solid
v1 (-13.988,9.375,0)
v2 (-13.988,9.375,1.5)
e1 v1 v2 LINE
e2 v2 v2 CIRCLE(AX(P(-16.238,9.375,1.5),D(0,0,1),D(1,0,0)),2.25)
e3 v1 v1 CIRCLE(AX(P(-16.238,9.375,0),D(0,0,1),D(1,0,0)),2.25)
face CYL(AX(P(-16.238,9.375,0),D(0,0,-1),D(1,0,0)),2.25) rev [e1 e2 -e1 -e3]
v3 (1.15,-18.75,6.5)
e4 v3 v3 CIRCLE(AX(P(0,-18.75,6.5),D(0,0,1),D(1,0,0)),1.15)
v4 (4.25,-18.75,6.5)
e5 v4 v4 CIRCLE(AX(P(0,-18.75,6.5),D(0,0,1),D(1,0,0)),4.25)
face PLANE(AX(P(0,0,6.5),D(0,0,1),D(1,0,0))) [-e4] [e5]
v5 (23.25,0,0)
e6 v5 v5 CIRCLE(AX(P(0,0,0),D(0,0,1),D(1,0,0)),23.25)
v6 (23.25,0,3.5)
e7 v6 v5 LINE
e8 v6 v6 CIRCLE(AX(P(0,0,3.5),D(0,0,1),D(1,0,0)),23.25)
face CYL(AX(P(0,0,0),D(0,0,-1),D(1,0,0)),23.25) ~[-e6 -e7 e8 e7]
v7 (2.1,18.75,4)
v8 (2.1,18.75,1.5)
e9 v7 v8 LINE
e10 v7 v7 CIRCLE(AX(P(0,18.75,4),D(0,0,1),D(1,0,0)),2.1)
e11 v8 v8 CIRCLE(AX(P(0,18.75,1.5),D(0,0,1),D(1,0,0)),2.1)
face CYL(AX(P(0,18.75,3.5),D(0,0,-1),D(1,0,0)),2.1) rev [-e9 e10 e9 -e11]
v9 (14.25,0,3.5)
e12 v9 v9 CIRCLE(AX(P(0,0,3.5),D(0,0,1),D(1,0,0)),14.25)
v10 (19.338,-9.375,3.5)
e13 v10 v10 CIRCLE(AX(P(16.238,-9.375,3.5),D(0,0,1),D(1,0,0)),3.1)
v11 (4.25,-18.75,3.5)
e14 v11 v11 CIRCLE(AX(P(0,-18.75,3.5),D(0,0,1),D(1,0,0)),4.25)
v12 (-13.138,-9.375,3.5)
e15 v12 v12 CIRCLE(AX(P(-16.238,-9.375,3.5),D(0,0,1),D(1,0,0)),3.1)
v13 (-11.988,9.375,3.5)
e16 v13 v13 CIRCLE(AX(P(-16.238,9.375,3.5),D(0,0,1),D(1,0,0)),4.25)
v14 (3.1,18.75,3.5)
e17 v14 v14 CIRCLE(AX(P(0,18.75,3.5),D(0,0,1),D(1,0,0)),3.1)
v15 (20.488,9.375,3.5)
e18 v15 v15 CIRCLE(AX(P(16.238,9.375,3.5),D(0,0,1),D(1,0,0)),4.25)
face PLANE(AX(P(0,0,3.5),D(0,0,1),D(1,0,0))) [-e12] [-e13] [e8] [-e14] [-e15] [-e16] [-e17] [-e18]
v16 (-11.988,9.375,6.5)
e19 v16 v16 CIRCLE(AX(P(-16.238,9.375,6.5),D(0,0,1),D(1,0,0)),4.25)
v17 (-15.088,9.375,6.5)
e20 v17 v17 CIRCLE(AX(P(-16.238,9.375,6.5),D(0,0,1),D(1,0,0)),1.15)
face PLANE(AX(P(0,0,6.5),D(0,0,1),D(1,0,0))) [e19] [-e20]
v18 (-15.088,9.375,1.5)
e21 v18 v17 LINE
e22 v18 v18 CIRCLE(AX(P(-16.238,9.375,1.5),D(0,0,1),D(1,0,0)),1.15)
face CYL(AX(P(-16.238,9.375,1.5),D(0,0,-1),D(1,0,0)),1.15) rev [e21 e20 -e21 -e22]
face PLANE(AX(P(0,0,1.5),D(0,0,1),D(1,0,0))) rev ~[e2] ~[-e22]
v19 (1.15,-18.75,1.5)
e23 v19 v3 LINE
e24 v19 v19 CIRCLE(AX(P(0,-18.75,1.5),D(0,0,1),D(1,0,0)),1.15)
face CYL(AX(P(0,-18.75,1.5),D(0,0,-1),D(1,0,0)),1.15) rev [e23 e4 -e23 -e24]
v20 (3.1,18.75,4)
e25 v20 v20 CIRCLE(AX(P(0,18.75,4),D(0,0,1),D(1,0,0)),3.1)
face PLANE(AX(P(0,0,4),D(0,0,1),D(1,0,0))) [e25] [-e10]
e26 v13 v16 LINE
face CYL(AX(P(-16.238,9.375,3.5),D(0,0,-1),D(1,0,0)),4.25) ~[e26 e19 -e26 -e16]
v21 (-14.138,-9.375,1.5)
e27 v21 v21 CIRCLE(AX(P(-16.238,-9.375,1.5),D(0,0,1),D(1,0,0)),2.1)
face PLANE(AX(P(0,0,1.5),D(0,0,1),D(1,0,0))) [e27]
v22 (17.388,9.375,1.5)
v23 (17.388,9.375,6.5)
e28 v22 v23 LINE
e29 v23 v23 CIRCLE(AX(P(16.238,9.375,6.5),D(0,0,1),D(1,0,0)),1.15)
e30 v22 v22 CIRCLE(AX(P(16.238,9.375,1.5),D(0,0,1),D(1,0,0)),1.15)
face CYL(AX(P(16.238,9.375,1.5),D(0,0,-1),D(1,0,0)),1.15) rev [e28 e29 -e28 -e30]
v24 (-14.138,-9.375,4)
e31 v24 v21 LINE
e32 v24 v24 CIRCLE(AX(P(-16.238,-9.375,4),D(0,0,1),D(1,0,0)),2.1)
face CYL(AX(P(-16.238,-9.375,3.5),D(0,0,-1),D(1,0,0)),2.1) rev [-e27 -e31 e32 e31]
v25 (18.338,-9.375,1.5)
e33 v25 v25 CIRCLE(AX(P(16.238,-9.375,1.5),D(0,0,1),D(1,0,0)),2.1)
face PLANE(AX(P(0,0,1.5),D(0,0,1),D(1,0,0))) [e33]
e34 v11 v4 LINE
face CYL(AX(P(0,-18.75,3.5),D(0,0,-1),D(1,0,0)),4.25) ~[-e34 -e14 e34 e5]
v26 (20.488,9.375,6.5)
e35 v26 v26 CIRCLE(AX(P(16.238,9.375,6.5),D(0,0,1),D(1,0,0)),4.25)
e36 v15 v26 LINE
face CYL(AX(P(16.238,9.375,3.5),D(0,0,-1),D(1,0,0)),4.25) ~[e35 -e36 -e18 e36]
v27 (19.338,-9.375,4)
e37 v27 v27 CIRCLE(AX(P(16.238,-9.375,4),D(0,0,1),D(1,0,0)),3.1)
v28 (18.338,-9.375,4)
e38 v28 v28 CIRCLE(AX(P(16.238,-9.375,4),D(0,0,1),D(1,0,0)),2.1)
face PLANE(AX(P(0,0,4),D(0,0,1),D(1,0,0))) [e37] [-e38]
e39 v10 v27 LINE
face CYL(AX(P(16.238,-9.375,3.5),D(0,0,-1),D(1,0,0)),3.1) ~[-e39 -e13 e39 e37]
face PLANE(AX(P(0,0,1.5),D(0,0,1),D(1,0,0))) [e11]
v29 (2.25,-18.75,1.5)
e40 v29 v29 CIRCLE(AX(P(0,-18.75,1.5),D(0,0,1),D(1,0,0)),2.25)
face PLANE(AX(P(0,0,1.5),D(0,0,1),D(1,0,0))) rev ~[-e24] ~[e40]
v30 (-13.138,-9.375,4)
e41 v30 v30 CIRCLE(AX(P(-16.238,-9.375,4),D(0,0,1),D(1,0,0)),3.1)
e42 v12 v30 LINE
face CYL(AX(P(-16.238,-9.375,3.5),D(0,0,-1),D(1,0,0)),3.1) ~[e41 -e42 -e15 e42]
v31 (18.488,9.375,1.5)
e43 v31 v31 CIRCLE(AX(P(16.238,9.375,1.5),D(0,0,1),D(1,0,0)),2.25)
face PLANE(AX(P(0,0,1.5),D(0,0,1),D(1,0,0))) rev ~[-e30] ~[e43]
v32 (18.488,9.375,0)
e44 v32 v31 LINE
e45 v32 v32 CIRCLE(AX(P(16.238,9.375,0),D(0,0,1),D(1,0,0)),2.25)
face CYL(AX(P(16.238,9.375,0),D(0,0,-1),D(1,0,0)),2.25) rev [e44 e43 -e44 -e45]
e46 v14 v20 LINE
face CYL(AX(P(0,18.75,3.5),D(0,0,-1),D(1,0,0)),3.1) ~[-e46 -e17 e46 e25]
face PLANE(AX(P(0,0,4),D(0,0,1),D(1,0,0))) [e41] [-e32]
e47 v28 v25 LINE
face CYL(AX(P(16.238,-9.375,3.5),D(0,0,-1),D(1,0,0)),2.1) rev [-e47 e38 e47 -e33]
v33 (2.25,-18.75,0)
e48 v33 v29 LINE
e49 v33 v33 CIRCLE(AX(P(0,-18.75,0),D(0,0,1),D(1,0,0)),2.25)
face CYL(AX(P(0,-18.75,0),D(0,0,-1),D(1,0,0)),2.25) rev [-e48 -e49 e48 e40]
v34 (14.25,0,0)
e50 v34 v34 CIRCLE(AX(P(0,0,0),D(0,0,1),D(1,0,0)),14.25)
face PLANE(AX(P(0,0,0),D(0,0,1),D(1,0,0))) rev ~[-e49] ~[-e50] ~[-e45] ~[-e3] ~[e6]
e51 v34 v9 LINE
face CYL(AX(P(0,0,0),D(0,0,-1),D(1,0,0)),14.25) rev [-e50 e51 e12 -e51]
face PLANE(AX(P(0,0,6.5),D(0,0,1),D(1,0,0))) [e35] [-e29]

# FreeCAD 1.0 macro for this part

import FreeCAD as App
import Part
import Sketcher

doc = App.newDocument("Part")
params = doc.addObject("Spreadsheet::Sheet", "Params")
for row, (alias, value) in enumerate([
    ("sketch1_diameter", "4.5 mm"),
    ("sketch1_diameter2", "46.5 mm"),
    ("sketch1_diameter3", "28.5 mm"),
    ("pad1_length", "1.5 mm"),
    ("sketch2_diameter", "4.2 mm"),
    ("sketch2_diameter2", "2.3 mm"),
    ("sketch2_diameter3", "46.5 mm"),
    ("sketch2_diameter4", "28.5 mm"),
    ("pad2_length", "2 mm"),
    ("sketch3_diameter", "2.3 mm"),
    ("sketch3_diameter2", "8.5 mm"),
    ("pad3_length", "3 mm"),
    ("sketch4_diameter", "4.2 mm"),
    ("sketch4_diameter2", "6.2 mm"),
    ("pad4_length", "0.5 mm"),
], start=1):
    params.set(f"A{row}", alias)
    params.set(f"B{row}", "=" + value)
    params.setAlias(f"B{row}", alias)

body = doc.addObject("PartDesign::Body", "Body")

sketch1 = body.newObject("Sketcher::SketchObject", "Sketch")
sketch1.AttachmentSupport = (doc.getObject("XY_Plane"), [""])
sketch1.MapMode = "FlatFace"
sketch1.addGeometry(Part.Circle(App.Vector(0, 0, 0), App.Vector(0, 0, 1), 23.2), False)
sketch1.addGeometry(Part.Circle(App.Vector(0, 0, 0), App.Vector(0, 0, 1), 14.2), False)
sketch1.addGeometry(Part.Circle(App.Vector(0, -18.8, 0), App.Vector(0, 0, 1), 2.2), False)
sketch1.addGeometry(Part.Circle(App.Vector(-16.2, 9.4, 0), App.Vector(0, 0, 1), 2.2), False)
sketch1.addGeometry(Part.Circle(App.Vector(16.2, 9.4, 0), App.Vector(0, 0, 1), 2.2), False)
sketch1.addConstraint(Sketcher.Constraint("Coincident", 0, 3, -1, 1))
sketch1.addConstraint(Sketcher.Constraint("Coincident", 1, 3, -1, 1))
sketch1.addConstraint(Sketcher.Constraint("Equal", 2, 3))
sketch1.addConstraint(Sketcher.Constraint("Equal", 3, 4))
sketch1.addConstraint(Sketcher.Constraint("Symmetric", 3, 3, 4, 3, -2))
sketch1.addConstraint(Sketcher.Constraint("PointOnObject", 2, 3, -2))
sketch1.addConstraint(Sketcher.Constraint("Diameter", 2, 4.5))
sketch1.addConstraint(Sketcher.Constraint("Diameter", 0, 46.5))
sketch1.addConstraint(Sketcher.Constraint("Diameter", 1, 28.5))
sketch1.addConstraint(Sketcher.Constraint("DistanceY", 2, 3, -1, 1, 18.75))
sketch1.addConstraint(Sketcher.Constraint("DistanceX", 3, 3, -1, 1, 16.238))
sketch1.addConstraint(Sketcher.Constraint("DistanceY", -1, 1, 3, 3, 9.375))
sketch1.setExpression("Constraints[6]", "Params.sketch1_diameter")
sketch1.setExpression("Constraints[7]", "Params.sketch1_diameter2")
sketch1.setExpression("Constraints[8]", "Params.sketch1_diameter3")
pad1 = body.newObject("PartDesign::Pad", "Pad")
pad1.Profile = sketch1
pad1.setExpression("Length", "Params.pad1_length")

sketch2 = body.newObject("Sketcher::SketchObject", "Sketch001")
sketch2.AttachmentSupport = (doc.getObject("XY_Plane"), [""])
sketch2.MapMode = "FlatFace"
sketch2.AttachmentOffset = App.Placement(App.Vector(0, 0, 1.5), App.Rotation())
sketch2.addGeometry(Part.Circle(App.Vector(0, 0, 0), App.Vector(0, 0, 1), 23.2), False)
sketch2.addGeometry(Part.Circle(App.Vector(0, 0, 0), App.Vector(0, 0, 1), 14.2), False)
sketch2.addGeometry(Part.Circle(App.Vector(-16.2, -9.4, 0), App.Vector(0, 0, 1), 2.1), False)
sketch2.addGeometry(Part.Circle(App.Vector(16.2, -9.4, 0), App.Vector(0, 0, 1), 2.1), False)
sketch2.addGeometry(Part.Circle(App.Vector(0, 18.8, 0), App.Vector(0, 0, 1), 2.1), False)
sketch2.addGeometry(Part.Circle(App.Vector(0, -18.8, 0), App.Vector(0, 0, 1), 1.1), False)
sketch2.addGeometry(Part.Circle(App.Vector(-16.2, 9.4, 0), App.Vector(0, 0, 1), 1.1), False)
sketch2.addGeometry(Part.Circle(App.Vector(16.2, 9.4, 0), App.Vector(0, 0, 1), 1.1), False)
sketch2.addConstraint(Sketcher.Constraint("Coincident", 0, 3, -1, 1))
sketch2.addConstraint(Sketcher.Constraint("Coincident", 1, 3, -1, 1))
sketch2.addConstraint(Sketcher.Constraint("Equal", 2, 3))
sketch2.addConstraint(Sketcher.Constraint("Equal", 3, 4))
sketch2.addConstraint(Sketcher.Constraint("Equal", 5, 6))
sketch2.addConstraint(Sketcher.Constraint("Equal", 6, 7))
sketch2.addConstraint(Sketcher.Constraint("Symmetric", 4, 3, 5, 3, -1, 1))
sketch2.addConstraint(Sketcher.Constraint("Symmetric", 3, 3, 6, 3, -1, 1))
sketch2.addConstraint(Sketcher.Constraint("Symmetric", 2, 3, 7, 3, -1, 1))
sketch2.addConstraint(Sketcher.Constraint("Symmetric", 2, 3, 3, 3, -2))
sketch2.addConstraint(Sketcher.Constraint("PointOnObject", 4, 3, -2))
sketch2.addConstraint(Sketcher.Constraint("Diameter", 2, 4.2))
sketch2.addConstraint(Sketcher.Constraint("Diameter", 5, 2.3))
sketch2.addConstraint(Sketcher.Constraint("Diameter", 0, 46.5))
sketch2.addConstraint(Sketcher.Constraint("Diameter", 1, 28.5))
sketch2.addConstraint(Sketcher.Constraint("DistanceY", 5, 3, 4, 3, 37.5))
sketch2.addConstraint(Sketcher.Constraint("DistanceY", 2, 3, 6, 3, 18.75))
sketch2.addConstraint(Sketcher.Constraint("DistanceX", 2, 3, -1, 1, 16.238))
sketch2.setExpression("Constraints[11]", "Params.sketch2_diameter")
sketch2.setExpression("Constraints[12]", "Params.sketch2_diameter2")
sketch2.setExpression("Constraints[13]", "Params.sketch2_diameter3")
sketch2.setExpression("Constraints[14]", "Params.sketch2_diameter4")
pad2 = body.newObject("PartDesign::Pad", "Pad001")
pad2.Profile = sketch2
pad2.setExpression("Length", "Params.pad2_length")

sketch3 = body.newObject("Sketcher::SketchObject", "Sketch002")
sketch3.AttachmentSupport = (doc.getObject("XY_Plane"), [""])
sketch3.MapMode = "FlatFace"
sketch3.AttachmentOffset = App.Placement(App.Vector(0, 0, 3.5), App.Rotation())
sketch3.addGeometry(Part.Circle(App.Vector(0, -18.8, 0), App.Vector(0, 0, 1), 4.2), False)
sketch3.addGeometry(Part.Circle(App.Vector(0, -18.8, 0), App.Vector(0, 0, 1), 1.1), False)
sketch3.addGeometry(Part.Circle(App.Vector(-16.2, 9.4, 0), App.Vector(0, 0, 1), 4.2), False)
sketch3.addGeometry(Part.Circle(App.Vector(-16.2, 9.4, 0), App.Vector(0, 0, 1), 1.1), False)
sketch3.addGeometry(Part.Circle(App.Vector(16.2, 9.4, 0), App.Vector(0, 0, 1), 4.2), False)
sketch3.addGeometry(Part.Circle(App.Vector(16.2, 9.4, 0), App.Vector(0, 0, 1), 1.1), False)
sketch3.addConstraint(Sketcher.Constraint("Coincident", 1, 3, 0, 3))
sketch3.addConstraint(Sketcher.Constraint("Coincident", 3, 3, 2, 3))
sketch3.addConstraint(Sketcher.Constraint("Coincident", 5, 3, 4, 3))
sketch3.addConstraint(Sketcher.Constraint("Equal", 0, 2))
sketch3.addConstraint(Sketcher.Constraint("Equal", 1, 3))
sketch3.addConstraint(Sketcher.Constraint("Equal", 2, 4))
sketch3.addConstraint(Sketcher.Constraint("Equal", 3, 5))
sketch3.addConstraint(Sketcher.Constraint("Symmetric", 2, 3, 4, 3, -2))
sketch3.addConstraint(Sketcher.Constraint("PointOnObject", 0, 3, -2))
sketch3.addConstraint(Sketcher.Constraint("Diameter", 1, 2.3))
sketch3.addConstraint(Sketcher.Constraint("Diameter", 0, 8.5))
sketch3.addConstraint(Sketcher.Constraint("DistanceY", 0, 3, -1, 1, 18.75))
sketch3.addConstraint(Sketcher.Constraint("DistanceX", 2, 3, -1, 1, 16.238))
sketch3.addConstraint(Sketcher.Constraint("DistanceY", -1, 1, 2, 3, 9.375))
sketch3.setExpression("Constraints[9]", "Params.sketch3_diameter")
sketch3.setExpression("Constraints[10]", "Params.sketch3_diameter2")
pad3 = body.newObject("PartDesign::Pad", "Pad002")
pad3.Profile = sketch3
pad3.setExpression("Length", "Params.pad3_length")

sketch4 = body.newObject("Sketcher::SketchObject", "Sketch003")
sketch4.AttachmentSupport = (doc.getObject("XY_Plane"), [""])
sketch4.MapMode = "FlatFace"
sketch4.AttachmentOffset = App.Placement(App.Vector(0, 0, 3.5), App.Rotation())
sketch4.addGeometry(Part.Circle(App.Vector(16.2, -9.4, 0), App.Vector(0, 0, 1), 3.1), False)
sketch4.addGeometry(Part.Circle(App.Vector(16.2, -9.4, 0), App.Vector(0, 0, 1), 2.1), False)
sketch4.addGeometry(Part.Circle(App.Vector(0, 18.8, 0), App.Vector(0, 0, 1), 3.1), False)
sketch4.addGeometry(Part.Circle(App.Vector(0, 18.8, 0), App.Vector(0, 0, 1), 2.1), False)
sketch4.addGeometry(Part.Circle(App.Vector(-16.2, -9.4, 0), App.Vector(0, 0, 1), 3.1), False)
sketch4.addGeometry(Part.Circle(App.Vector(-16.2, -9.4, 0), App.Vector(0, 0, 1), 2.1), False)
sketch4.addConstraint(Sketcher.Constraint("Coincident", 1, 3, 0, 3))
sketch4.addConstraint(Sketcher.Constraint("Coincident", 3, 3, 2, 3))
sketch4.addConstraint(Sketcher.Constraint("Coincident", 5, 3, 4, 3))
sketch4.addConstraint(Sketcher.Constraint("Equal", 0, 2))
sketch4.addConstraint(Sketcher.Constraint("Equal", 1, 3))
sketch4.addConstraint(Sketcher.Constraint("Equal", 2, 4))
sketch4.addConstraint(Sketcher.Constraint("Equal", 3, 5))
sketch4.addConstraint(Sketcher.Constraint("Symmetric", 0, 3, 4, 3, -2))
sketch4.addConstraint(Sketcher.Constraint("PointOnObject", 2, 3, -2))
sketch4.addConstraint(Sketcher.Constraint("Diameter", 1, 4.2))
sketch4.addConstraint(Sketcher.Constraint("Diameter", 0, 6.2))
sketch4.addConstraint(Sketcher.Constraint("DistanceY", -1, 1, 2, 3, 18.75))
sketch4.addConstraint(Sketcher.Constraint("DistanceX", -1, 1, 0, 3, 16.238))
sketch4.addConstraint(Sketcher.Constraint("DistanceY", 0, 3, -1, 1, 9.375))
sketch4.setExpression("Constraints[9]", "Params.sketch4_diameter")
sketch4.setExpression("Constraints[10]", "Params.sketch4_diameter2")
pad4 = body.newObject("PartDesign::Pad", "Pad003")
pad4.Profile = sketch4
pad4.setExpression("Length", "Params.pad4_length")

doc.recompute()
